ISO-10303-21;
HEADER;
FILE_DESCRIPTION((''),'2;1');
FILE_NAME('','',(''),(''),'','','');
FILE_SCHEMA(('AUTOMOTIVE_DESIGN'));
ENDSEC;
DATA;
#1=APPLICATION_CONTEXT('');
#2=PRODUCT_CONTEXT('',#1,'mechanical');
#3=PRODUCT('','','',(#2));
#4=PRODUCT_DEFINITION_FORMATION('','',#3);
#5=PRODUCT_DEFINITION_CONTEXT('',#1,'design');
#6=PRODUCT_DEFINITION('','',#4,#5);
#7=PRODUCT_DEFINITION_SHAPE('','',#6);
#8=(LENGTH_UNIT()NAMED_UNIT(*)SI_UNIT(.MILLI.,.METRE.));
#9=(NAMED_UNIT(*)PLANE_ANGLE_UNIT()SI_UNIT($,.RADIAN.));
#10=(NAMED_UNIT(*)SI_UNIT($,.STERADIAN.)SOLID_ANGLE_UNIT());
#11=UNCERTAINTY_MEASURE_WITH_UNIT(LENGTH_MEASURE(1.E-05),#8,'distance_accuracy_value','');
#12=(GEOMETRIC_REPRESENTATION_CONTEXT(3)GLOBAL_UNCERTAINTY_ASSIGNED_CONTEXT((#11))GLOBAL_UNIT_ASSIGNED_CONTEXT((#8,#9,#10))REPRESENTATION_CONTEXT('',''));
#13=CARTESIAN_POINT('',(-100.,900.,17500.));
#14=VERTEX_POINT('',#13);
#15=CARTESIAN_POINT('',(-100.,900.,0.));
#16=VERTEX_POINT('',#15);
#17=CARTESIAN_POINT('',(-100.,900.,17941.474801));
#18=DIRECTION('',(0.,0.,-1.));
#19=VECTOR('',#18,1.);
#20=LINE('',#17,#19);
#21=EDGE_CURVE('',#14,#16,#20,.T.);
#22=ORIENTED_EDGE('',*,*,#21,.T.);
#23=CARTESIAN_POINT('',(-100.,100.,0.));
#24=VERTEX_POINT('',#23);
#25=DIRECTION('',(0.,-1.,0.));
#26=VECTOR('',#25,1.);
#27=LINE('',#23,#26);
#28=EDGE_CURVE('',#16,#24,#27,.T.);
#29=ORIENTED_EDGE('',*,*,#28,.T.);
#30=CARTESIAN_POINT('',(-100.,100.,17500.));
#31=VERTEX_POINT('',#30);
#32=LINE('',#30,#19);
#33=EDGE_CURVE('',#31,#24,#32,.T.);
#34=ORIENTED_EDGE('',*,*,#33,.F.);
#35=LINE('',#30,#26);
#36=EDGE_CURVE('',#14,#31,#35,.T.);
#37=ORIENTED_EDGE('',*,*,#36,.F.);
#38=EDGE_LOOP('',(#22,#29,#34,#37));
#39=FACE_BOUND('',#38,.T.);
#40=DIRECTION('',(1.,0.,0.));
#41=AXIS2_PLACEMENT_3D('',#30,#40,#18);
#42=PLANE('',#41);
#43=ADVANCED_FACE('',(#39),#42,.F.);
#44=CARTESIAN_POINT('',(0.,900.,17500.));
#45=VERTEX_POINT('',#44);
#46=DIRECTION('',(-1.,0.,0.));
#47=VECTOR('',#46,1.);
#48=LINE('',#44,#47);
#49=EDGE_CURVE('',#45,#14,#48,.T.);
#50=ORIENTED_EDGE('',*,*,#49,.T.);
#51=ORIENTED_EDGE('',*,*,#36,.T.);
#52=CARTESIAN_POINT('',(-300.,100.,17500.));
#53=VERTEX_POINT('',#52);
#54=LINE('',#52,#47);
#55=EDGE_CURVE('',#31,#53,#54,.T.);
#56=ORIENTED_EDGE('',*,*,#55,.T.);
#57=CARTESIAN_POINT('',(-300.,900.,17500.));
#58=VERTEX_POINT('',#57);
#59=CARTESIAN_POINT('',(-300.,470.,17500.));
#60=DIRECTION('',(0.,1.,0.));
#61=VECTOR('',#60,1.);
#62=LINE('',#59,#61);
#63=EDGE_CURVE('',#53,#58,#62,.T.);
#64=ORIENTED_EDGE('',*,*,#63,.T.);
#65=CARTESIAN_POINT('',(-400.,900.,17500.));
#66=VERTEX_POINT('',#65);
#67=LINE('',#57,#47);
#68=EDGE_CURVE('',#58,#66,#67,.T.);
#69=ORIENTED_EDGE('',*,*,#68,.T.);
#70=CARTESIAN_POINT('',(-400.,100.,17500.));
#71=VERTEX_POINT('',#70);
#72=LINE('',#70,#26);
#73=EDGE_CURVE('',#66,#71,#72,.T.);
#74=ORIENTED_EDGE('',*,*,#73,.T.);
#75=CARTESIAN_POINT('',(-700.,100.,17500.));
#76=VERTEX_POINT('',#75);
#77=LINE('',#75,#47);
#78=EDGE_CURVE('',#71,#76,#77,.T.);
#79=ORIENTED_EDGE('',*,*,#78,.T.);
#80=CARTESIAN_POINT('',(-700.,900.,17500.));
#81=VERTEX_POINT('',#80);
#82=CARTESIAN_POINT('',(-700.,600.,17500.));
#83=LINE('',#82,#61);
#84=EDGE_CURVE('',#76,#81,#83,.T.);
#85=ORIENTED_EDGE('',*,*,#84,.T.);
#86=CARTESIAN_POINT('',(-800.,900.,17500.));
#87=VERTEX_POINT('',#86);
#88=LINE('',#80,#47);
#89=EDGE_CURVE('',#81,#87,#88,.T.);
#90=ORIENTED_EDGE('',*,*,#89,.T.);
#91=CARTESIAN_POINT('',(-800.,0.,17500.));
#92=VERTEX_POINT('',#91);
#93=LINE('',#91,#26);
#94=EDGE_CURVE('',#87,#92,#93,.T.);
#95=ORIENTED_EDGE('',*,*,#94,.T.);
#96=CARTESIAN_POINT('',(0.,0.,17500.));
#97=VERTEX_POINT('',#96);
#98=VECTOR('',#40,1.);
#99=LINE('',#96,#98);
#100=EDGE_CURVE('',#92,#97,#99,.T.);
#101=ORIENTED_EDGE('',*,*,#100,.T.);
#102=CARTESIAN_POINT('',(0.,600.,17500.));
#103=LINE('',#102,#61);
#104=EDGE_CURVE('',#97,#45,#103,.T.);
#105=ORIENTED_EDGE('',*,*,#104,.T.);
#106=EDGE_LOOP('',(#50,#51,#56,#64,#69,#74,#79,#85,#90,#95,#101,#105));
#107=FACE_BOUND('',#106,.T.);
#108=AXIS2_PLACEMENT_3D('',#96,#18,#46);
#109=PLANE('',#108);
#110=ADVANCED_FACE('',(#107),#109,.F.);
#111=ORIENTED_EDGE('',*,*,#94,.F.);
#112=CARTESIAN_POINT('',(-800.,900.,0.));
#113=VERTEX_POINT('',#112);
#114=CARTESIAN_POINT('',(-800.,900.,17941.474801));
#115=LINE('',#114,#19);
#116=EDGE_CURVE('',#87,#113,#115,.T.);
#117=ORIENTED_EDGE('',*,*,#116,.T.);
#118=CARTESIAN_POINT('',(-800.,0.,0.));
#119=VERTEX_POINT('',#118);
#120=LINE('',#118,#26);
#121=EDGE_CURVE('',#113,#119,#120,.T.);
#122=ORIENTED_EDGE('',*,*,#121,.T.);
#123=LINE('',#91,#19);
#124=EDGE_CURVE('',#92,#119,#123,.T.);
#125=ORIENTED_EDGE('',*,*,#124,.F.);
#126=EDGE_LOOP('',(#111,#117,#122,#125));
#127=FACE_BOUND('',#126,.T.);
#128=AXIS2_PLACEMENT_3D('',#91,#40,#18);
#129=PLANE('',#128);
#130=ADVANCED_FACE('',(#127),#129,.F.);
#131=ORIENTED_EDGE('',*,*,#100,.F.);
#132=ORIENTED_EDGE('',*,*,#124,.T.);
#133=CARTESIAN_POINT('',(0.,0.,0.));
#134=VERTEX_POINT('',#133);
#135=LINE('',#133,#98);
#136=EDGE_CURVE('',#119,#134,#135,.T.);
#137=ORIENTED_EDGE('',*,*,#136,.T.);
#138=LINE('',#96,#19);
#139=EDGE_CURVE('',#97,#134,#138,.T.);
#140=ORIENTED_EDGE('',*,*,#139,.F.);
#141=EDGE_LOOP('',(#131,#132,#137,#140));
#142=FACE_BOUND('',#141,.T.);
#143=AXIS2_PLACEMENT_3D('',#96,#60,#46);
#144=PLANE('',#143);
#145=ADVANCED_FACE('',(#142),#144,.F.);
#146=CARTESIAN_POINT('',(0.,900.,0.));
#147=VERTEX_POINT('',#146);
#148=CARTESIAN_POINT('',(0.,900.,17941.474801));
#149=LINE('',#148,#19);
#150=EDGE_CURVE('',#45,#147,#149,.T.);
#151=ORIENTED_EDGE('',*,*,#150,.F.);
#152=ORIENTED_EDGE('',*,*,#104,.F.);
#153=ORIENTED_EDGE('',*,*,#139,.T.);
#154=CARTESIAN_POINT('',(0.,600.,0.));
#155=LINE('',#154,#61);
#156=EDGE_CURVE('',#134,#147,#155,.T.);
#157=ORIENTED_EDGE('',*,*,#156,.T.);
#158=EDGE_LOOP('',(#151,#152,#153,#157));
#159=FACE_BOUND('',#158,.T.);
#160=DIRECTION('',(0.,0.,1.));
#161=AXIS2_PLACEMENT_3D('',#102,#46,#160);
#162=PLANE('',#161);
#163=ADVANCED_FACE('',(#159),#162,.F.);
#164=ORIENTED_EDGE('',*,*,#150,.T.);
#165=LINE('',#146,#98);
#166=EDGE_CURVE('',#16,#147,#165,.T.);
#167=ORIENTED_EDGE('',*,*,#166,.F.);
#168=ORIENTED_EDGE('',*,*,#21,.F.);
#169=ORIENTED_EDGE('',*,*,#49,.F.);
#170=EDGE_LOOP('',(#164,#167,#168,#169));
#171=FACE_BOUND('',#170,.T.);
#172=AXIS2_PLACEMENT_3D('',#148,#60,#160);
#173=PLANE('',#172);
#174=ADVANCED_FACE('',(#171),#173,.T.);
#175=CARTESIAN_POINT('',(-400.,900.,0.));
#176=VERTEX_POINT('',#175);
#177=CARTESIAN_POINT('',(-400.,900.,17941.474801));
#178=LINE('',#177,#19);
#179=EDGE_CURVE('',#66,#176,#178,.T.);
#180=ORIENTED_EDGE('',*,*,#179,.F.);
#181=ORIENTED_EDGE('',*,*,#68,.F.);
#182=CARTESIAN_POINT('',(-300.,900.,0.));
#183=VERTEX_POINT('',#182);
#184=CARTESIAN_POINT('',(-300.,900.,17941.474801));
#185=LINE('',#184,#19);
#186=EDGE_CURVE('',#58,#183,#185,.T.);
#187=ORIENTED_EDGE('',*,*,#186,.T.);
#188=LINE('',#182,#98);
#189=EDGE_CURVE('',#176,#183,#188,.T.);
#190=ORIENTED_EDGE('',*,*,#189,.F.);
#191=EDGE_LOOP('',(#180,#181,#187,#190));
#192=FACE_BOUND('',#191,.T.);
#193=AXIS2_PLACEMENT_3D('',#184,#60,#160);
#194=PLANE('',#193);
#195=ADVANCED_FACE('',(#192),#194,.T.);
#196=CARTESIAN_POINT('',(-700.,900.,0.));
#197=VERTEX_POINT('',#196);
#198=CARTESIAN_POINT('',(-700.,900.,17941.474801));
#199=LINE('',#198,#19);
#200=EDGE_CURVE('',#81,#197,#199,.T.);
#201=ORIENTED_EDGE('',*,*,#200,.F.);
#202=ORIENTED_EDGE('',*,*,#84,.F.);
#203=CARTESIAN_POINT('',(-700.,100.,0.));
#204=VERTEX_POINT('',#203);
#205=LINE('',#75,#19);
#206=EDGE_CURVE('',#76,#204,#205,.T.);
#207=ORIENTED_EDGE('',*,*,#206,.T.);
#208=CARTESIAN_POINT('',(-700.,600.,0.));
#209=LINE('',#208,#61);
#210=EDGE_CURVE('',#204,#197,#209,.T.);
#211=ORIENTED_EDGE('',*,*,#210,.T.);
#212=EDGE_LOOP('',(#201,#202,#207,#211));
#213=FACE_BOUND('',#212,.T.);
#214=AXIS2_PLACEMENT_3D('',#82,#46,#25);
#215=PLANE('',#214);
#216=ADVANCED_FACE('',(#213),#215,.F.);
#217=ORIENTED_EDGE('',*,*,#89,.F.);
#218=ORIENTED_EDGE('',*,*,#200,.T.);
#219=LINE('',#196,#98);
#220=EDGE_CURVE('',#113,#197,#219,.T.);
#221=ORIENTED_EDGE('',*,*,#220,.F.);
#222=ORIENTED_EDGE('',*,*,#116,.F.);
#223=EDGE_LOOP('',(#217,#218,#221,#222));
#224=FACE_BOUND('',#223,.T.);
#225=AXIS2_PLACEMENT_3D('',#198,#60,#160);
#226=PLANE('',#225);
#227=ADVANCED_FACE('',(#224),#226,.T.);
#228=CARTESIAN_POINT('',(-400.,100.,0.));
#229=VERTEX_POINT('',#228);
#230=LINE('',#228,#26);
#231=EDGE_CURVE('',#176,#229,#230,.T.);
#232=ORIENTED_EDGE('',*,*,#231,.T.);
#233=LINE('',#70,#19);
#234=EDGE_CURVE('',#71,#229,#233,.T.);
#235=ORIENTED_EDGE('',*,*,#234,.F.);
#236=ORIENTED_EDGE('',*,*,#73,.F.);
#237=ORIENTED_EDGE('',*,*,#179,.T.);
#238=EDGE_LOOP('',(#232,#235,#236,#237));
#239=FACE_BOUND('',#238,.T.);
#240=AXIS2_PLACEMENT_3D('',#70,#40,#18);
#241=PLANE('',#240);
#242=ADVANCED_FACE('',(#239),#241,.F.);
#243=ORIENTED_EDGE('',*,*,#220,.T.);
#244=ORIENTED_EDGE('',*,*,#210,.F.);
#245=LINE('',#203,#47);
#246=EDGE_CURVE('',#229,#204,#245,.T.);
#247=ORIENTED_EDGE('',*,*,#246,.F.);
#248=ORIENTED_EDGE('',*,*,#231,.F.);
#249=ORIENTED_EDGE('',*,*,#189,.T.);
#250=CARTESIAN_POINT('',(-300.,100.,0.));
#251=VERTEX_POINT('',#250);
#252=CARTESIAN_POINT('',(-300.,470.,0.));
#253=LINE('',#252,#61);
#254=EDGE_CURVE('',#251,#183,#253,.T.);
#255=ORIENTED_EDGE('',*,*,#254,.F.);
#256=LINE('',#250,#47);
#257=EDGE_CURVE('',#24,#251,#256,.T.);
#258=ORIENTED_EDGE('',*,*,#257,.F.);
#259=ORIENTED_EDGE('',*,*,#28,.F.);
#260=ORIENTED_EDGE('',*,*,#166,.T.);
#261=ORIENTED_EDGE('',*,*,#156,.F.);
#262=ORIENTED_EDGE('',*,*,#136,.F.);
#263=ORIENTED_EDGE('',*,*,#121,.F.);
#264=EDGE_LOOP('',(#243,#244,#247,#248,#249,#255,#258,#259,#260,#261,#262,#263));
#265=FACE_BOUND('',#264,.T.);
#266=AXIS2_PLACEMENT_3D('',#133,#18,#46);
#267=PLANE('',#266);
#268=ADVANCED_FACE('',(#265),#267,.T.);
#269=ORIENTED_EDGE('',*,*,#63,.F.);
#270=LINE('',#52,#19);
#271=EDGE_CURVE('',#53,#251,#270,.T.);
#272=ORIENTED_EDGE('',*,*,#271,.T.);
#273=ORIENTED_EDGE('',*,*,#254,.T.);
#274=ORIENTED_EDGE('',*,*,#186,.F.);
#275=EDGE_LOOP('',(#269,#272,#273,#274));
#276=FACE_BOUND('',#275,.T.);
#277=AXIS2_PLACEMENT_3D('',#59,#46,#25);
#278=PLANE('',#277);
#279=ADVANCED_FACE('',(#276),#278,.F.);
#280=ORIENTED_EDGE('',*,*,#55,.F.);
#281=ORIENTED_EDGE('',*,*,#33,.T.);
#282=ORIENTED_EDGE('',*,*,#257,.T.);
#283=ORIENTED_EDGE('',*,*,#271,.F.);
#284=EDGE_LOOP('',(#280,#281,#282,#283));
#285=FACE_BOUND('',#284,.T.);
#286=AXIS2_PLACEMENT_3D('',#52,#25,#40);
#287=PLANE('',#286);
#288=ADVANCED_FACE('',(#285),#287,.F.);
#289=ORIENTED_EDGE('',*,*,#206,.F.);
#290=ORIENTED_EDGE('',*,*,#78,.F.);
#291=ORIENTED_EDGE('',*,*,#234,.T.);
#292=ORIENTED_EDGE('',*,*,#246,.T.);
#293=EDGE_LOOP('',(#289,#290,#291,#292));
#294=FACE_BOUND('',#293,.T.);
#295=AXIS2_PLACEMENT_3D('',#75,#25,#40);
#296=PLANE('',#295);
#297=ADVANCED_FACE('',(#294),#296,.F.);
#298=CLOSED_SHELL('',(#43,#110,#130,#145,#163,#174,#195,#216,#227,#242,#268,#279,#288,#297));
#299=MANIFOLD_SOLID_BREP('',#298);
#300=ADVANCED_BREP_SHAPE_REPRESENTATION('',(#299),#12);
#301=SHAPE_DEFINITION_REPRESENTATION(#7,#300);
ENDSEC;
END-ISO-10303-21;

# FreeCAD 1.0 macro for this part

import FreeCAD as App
import Part
import Sketcher

V = App.Vector
Q = App.Units.Quantity

doc = App.newDocument("Part")
params = doc.addObject("Spreadsheet::Sheet", "Params")
for row, (alias, value) in enumerate([
    ("sketch1_width", "800 mm"),
    ("sketch1_width2", "100 mm"),
    ("sketch1_width3", "200 mm"),
    ("sketch1_height", "600 mm"),
    ("sketch1_height2", "500 mm"),
    ("pad1_length", "17500 mm"),
    ("sketch2_width", "100 mm"),
    ("sketch2_height", "300 mm"),
    ("sketch2_height2", "430 mm"),
    ("pad2_length", "17500 mm"),
], start=1):
    params.set(f"A{row}", alias)
    params.set(f"B{row}", "=" + value)
    params.setAlias(f"B{row}", alias)

body = doc.addObject("PartDesign::Body", "Body")

sketch1 = doc.addObject("Sketcher::SketchObject", "Sketch")
body.addObject(sketch1)
sketch1.AttachmentSupport = (doc.XY_Plane, [""])
sketch1.MapMode = "FlatFace"
sketch1.addGeometry([
    Part.LineSegment(V(-800, 0, 0), V(0, 0, 0)),
    Part.LineSegment(V(0, 0, 0), V(0, 600, 0)),
    Part.LineSegment(V(0, 600, 0), V(-100, 600, 0)),
    Part.LineSegment(V(-100, 600, 0), V(-100, 100, 0)),
    Part.LineSegment(V(-100, 100, 0), V(-300, 100, 0)),
    Part.LineSegment(V(-300, 100, 0), V(-300, 470, 0)),
    Part.LineSegment(V(-300, 470, 0), V(-400, 470, 0)),
    Part.LineSegment(V(-400, 470, 0), V(-400, 100, 0)),
    Part.LineSegment(V(-400, 100, 0), V(-700, 100, 0)),
    Part.LineSegment(V(-700, 100, 0), V(-700, 600, 0)),
    Part.LineSegment(V(-700, 600, 0), V(-800, 600, 0)),
    Part.LineSegment(V(-800, 600, 0), V(-800, 0, 0)),
], False)
sketch1.addConstraint([
    Sketcher.Constraint("Coincident", 0, 2, 1, 1),
    Sketcher.Constraint("Coincident", 1, 2, 2, 1),
    Sketcher.Constraint("Coincident", 2, 2, 3, 1),
    Sketcher.Constraint("Coincident", 3, 2, 4, 1),
    Sketcher.Constraint("Coincident", 4, 2, 5, 1),
    Sketcher.Constraint("Coincident", 5, 2, 6, 1),
    Sketcher.Constraint("Coincident", 6, 2, 7, 1),
    Sketcher.Constraint("Coincident", 7, 2, 8, 1),
    Sketcher.Constraint("Coincident", 8, 2, 9, 1),
    Sketcher.Constraint("Coincident", 9, 2, 10, 1),
    Sketcher.Constraint("Coincident", 10, 2, 11, 1),
    Sketcher.Constraint("Coincident", 11, 2, 0, 1),
    Sketcher.Constraint("Horizontal", 0),
    Sketcher.Constraint("Vertical", 1),
    Sketcher.Constraint("Horizontal", 2),
    Sketcher.Constraint("Vertical", 3),
    Sketcher.Constraint("Horizontal", 4),
    Sketcher.Constraint("Vertical", 5),
    Sketcher.Constraint("Horizontal", 6),
    Sketcher.Constraint("Vertical", 7),
    Sketcher.Constraint("Horizontal", 8),
    Sketcher.Constraint("Vertical", 9),
    Sketcher.Constraint("Horizontal", 10),
    Sketcher.Constraint("Vertical", 11),
    Sketcher.Constraint("Coincident", 0, 2, -1, 1),
    Sketcher.Constraint("Horizontal", 4, 2, 7, 2),
    Sketcher.Constraint("Horizontal", 2, 2, 9, 2),
    Sketcher.Constraint("Equal", 2, 6),
    Sketcher.Constraint("Equal", 6, 10),
    Sketcher.Constraint("DistanceX", 0, 1, 0, 2, Q("800 mm")),
    Sketcher.Constraint("DistanceX", 2, 2, 2, 1, Q("100 mm")),
    Sketcher.Constraint("DistanceX", 4, 2, 4, 1, Q("200 mm")),
    Sketcher.Constraint("DistanceY", 1, 1, 1, 2, Q("600 mm")),
    Sketcher.Constraint("DistanceY", 3, 2, 3, 1, Q("500 mm")),
    Sketcher.Constraint("DistanceY", 5, 1, 5, 2, Q("370 mm")),
])
sketch1.setExpression("Constraints[29]", "Params.sketch1_width")
sketch1.setExpression("Constraints[30]", "Params.sketch1_width2")
sketch1.setExpression("Constraints[31]", "Params.sketch1_width3")
sketch1.setExpression("Constraints[32]", "Params.sketch1_height")
sketch1.setExpression("Constraints[33]", "Params.sketch1_height2")
pad1 = doc.addObject("PartDesign::Pad", "Pad")
body.addObject(pad1)
pad1.Profile = sketch1
pad1.setExpression("Length", "Params.pad1_length")

sketch2 = doc.addObject("Sketcher::SketchObject", "Sketch001")
body.addObject(sketch2)
sketch2.AttachmentSupport = (doc.XY_Plane, [""])
sketch2.MapMode = "FlatFace"
sketch2.addGeometry([
    Part.LineSegment(V(0, 900, 0), V(0, 600, 0)),
    Part.LineSegment(V(0, 600, 0), V(-100, 600, 0)),
    Part.LineSegment(V(-100, 600, 0), V(-100, 900, 0)),
    Part.LineSegment(V(-100, 900, 0), V(0, 900, 0)),
    Part.LineSegment(V(-700, 900, 0), V(-700, 600, 0)),
    Part.LineSegment(V(-700, 600, 0), V(-800, 600, 0)),
    Part.LineSegment(V(-800, 600, 0), V(-800, 900, 0)),
    Part.LineSegment(V(-800, 900, 0), V(-700, 900, 0)),
    Part.LineSegment(V(-400, 470, 0), V(-400, 900, 0)),
    Part.LineSegment(V(-400, 900, 0), V(-300, 900, 0)),
    Part.LineSegment(V(-300, 900, 0), V(-300, 470, 0)),
    Part.LineSegment(V(-300, 470, 0), V(-400, 470, 0)),
], False)
sketch2.addConstraint([
    Sketcher.Constraint("Coincident", 0, 2, 1, 1),
    Sketcher.Constraint("Coincident", 1, 2, 2, 1),
    Sketcher.Constraint("Coincident", 2, 2, 3, 1),
    Sketcher.Constraint("Coincident", 3, 2, 0, 1),
    Sketcher.Constraint("Coincident", 4, 2, 5, 1),
    Sketcher.Constraint("Coincident", 5, 2, 6, 1),
    Sketcher.Constraint("Coincident", 6, 2, 7, 1),
    Sketcher.Constraint("Coincident", 7, 2, 4, 1),
    Sketcher.Constraint("Coincident", 8, 2, 9, 1),
    Sketcher.Constraint("Coincident", 9, 2, 10, 1),
    Sketcher.Constraint("Coincident", 10, 2, 11, 1),
    Sketcher.Constraint("Coincident", 11, 2, 8, 1),
    Sketcher.Constraint("Vertical", 0),
    Sketcher.Constraint("Horizontal", 1),
    Sketcher.Constraint("Vertical", 2),
    Sketcher.Constraint("Horizontal", 3),
    Sketcher.Constraint("Vertical", 4),
    Sketcher.Constraint("Horizontal", 5),
    Sketcher.Constraint("Vertical", 6),
    Sketcher.Constraint("Horizontal", 7),
    Sketcher.Constraint("Vertical", 8),
    Sketcher.Constraint("Horizontal", 9),
    Sketcher.Constraint("Vertical", 10),
    Sketcher.Constraint("Horizontal", 11),
    Sketcher.Constraint("PointOnObject", 0, 2, -2),
    Sketcher.Constraint("Horizontal", 1, 2, 4, 2),
    Sketcher.Constraint("Horizontal", 3, 2, 6, 2),
    Sketcher.Constraint("Horizontal", 7, 2, 8, 2),
    Sketcher.Constraint("Equal", 3, 5),
    Sketcher.Constraint("Equal", 7, 9),
    Sketcher.Constraint("DistanceX", 1, 2, 1, 1, Q("100 mm")),
    Sketcher.Constraint("DistanceY", 0, 2, 0, 1, Q("300 mm")),
    Sketcher.Constraint("DistanceY", 8, 1, 8, 2, Q("430 mm")),
    Sketcher.Constraint("DistanceY", -1, 1, 0, 2, Q("600 mm")),
    Sketcher.Constraint("DistanceX", 4, 2, -1, 1, Q("700 mm")),
    Sketcher.Constraint("DistanceX", 8, 2, -1, 1, Q("400 mm")),
])
sketch2.setExpression("Constraints[30]", "Params.sketch2_width")
sketch2.setExpression("Constraints[31]", "Params.sketch2_height")
sketch2.setExpression("Constraints[32]", "Params.sketch2_height2")
pad2 = doc.addObject("PartDesign::Pad", "Pad001")
body.addObject(pad2)
pad2.Profile = sketch2
pad2.setExpression("Length", "Params.pad2_length")

doc.recompute()
